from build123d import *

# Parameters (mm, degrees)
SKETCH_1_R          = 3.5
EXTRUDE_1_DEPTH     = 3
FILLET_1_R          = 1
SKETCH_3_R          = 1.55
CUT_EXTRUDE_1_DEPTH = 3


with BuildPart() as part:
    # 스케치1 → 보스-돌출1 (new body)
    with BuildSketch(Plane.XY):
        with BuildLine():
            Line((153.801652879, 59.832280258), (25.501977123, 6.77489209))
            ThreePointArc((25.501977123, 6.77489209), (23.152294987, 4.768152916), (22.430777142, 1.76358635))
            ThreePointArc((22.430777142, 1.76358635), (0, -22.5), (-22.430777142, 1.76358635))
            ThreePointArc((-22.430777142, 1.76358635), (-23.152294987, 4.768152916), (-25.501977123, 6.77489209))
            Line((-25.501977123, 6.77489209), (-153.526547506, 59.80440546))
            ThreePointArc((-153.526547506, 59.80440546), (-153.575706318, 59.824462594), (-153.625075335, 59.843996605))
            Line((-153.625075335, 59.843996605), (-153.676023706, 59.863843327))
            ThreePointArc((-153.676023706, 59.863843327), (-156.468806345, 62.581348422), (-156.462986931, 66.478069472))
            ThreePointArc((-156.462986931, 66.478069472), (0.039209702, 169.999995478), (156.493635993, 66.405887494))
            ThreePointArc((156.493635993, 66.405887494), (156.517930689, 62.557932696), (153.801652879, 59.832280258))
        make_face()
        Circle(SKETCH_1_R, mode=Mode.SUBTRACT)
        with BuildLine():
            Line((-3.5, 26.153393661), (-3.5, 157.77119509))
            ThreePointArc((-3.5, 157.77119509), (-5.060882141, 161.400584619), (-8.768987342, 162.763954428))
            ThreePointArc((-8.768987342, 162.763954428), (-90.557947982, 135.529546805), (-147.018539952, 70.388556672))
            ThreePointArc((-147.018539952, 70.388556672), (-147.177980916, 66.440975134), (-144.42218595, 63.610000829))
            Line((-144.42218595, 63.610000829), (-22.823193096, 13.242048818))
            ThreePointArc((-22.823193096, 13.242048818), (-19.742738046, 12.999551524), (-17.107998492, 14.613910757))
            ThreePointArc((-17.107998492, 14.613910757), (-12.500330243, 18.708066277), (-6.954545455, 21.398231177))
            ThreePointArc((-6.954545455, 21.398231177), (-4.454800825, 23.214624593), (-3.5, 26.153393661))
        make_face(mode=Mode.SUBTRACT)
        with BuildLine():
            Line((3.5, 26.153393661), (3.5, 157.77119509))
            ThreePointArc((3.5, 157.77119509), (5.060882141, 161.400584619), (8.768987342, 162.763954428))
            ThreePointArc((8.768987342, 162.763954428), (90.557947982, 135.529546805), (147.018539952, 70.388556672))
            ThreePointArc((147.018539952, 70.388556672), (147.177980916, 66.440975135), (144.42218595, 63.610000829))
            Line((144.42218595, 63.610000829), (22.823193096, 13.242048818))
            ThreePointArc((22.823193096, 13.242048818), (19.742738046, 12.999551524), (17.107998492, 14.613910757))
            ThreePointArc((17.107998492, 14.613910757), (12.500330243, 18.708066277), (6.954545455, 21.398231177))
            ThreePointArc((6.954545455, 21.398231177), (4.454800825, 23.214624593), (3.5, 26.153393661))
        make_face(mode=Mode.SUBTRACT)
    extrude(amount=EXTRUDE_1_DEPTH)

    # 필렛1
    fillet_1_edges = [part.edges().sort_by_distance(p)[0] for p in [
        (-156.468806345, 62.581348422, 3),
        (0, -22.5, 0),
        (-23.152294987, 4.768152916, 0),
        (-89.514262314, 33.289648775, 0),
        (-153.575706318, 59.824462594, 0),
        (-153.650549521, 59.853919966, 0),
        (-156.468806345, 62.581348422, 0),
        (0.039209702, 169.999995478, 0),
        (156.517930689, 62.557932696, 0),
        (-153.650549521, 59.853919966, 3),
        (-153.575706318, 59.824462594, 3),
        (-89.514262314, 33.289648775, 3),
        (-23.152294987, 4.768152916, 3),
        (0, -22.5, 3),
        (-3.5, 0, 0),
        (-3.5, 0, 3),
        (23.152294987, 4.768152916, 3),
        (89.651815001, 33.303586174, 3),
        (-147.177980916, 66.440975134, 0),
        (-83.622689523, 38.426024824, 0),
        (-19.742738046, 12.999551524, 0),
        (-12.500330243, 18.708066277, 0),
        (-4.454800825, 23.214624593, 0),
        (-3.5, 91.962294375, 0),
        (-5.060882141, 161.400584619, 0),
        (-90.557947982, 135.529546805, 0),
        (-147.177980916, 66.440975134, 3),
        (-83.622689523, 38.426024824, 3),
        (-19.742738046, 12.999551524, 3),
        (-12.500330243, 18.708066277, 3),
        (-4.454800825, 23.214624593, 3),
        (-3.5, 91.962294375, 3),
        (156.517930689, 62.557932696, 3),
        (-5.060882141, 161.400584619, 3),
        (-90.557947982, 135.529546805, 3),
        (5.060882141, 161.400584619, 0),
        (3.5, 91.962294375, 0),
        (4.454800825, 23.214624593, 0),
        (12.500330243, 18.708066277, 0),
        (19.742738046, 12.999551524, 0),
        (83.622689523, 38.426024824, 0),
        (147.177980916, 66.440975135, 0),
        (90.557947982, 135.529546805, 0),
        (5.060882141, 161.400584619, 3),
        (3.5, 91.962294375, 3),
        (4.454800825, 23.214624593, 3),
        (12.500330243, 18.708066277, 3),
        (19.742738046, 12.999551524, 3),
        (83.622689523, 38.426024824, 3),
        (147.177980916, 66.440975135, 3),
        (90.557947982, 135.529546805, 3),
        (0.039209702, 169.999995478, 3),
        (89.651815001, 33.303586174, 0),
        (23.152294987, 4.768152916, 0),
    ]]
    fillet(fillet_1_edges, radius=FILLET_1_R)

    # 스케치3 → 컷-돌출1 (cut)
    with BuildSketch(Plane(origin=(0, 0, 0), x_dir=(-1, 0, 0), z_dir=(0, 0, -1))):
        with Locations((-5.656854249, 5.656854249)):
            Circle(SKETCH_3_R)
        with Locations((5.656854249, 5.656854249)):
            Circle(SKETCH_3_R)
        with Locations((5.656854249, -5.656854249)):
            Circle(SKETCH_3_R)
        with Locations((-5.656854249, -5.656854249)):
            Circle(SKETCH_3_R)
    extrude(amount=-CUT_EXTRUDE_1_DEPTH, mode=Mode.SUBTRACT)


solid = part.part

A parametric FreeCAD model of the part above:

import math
import FreeCAD as App
import Part
import Sketcher
from FreeCAD import Vector


def edges_at(feature, points):
    """Names of the edges that pass closest to the given points."""
    edges = feature.Shape.Edges
    near = lambda p: min(range(len(edges)), key=lambda i: edges[i].distToShape(Part.Vertex(*p))[0])
    return sorted({f"Edge{near(p) + 1}" for p in points})

doc = App.newDocument("Part")
body = doc.addObject("PartDesign::Body", "Body")

# Sketch on XY plane
sketch1 = body.newObject("Sketcher::SketchObject", "Sketch")
sketch1.AttachmentSupport = (doc.getObject("XY_Plane"), [""])
sketch1.MapMode = "FlatFace"
sketch1.addGeometry([
    Part.LineSegment(Vector(25.501977, 6.774892, 0), Vector(153.801653, 59.83228, 0)),  # 0
    Part.ArcOfCircle(Part.Circle(Vector(151.890882, 64.452773, 0), Vector(0, 0, 1), 5), math.radians(-67.532819), math.radians(22.993262)),  # 1
    Part.ArcOfCircle(Part.Circle(Vector(0, 0, 0), Vector(0, 0, 1), 170), math.radians(22.993262), math.radians(156.980308)),  # 2
    Part.ArcOfCircle(Part.Circle(Vector(-151.861134, 64.522832, 0), Vector(0, 0, 1), 5), math.radians(156.980308), math.radians(248.71681)),  # 3
    Part.LineSegment(Vector(-153.676024, 59.863843, 0), Vector(-153.625075, 59.843997, 0)),  # 4
    Part.ArcOfCircle(Part.Circle(Vector(-155.439962, 55.185015, 0), Vector(0, 0, 1), 4.999992), math.radians(67.499999), math.radians(68.716811)),  # 5
    Part.LineSegment(Vector(-153.526548, 59.804405, 0), Vector(-25.501977, 6.774892, 0)),  # 6
    Part.ArcOfCircle(Part.Circle(Vector(-27.415394, 2.155494, 0), Vector(0, 0, 1), 5), math.radians(-4.495547), math.radians(67.5)),  # 7
    Part.ArcOfCircle(Part.Circle(Vector(0, 0, 0), Vector(0, 0, 1), 22.5), math.radians(175.504453), math.radians(364.495547)),  # 8
    Part.ArcOfCircle(Part.Circle(Vector(27.415394, 2.155494, 0), Vector(0, 0, 1), 5), math.radians(112.5), math.radians(184.495547)),  # 9
    Part.Circle(Vector(0, 0, 0), Vector(0, 0, 1), 3.5),  # 10
    Part.LineSegment(Vector(3.5, 26.153394, 0), Vector(3.5, 157.771195, 0)),  # 11
    Part.ArcOfCircle(Part.Circle(Vector(8.5, 157.771195, 0), Vector(0, 0, 1), 5), math.radians(86.916143), math.radians(180)),  # 12
    Part.ArcOfCircle(Part.Circle(Vector(0, 0, 0), Vector(0, 0, 1), 163), math.radians(25.583857), math.radians(86.916143)),  # 13
    Part.ArcOfCircle(Part.Circle(Vector(142.508769, 68.229398, 0), Vector(0, 0, 1), 5), math.radians(-67.5), math.radians(25.583857)),  # 14
    Part.LineSegment(Vector(144.422186, 63.610001, 0), Vector(22.823193, 13.242049, 0)),  # 15
    Part.ArcOfCircle(Part.Circle(Vector(20.909776, 17.861446, 0), Vector(0, 0, 1), 5), math.radians(-139.495547), math.radians(-67.5)),  # 16
    Part.ArcOfCircle(Part.Circle(Vector(0, 0, 0), Vector(0, 0, 1), 22.5), math.radians(40.504453), math.radians(71.995547)),  # 17
    Part.ArcOfCircle(Part.Circle(Vector(8.5, 26.153394, 0), Vector(0, 0, 1), 5), math.radians(180), math.radians(251.995547)),  # 18
    Part.ArcOfCircle(Part.Circle(Vector(-8.5, 26.153394, 0), Vector(0, 0, 1), 5), math.radians(-71.995547), math.radians(0)),  # 19
    Part.ArcOfCircle(Part.Circle(Vector(0, 0, 0), Vector(0, 0, 1), 22.5), math.radians(108.004453), math.radians(139.495547)),  # 20
    Part.ArcOfCircle(Part.Circle(Vector(-20.909776, 17.861446, 0), Vector(0, 0, 1), 5), math.radians(-112.5), math.radians(-40.504453)),  # 21
    Part.LineSegment(Vector(-22.823193, 13.242049, 0), Vector(-144.422186, 63.610001, 0)),  # 22
    Part.ArcOfCircle(Part.Circle(Vector(-142.508769, 68.229398, 0), Vector(0, 0, 1), 5), math.radians(154.416143), math.radians(247.5)),  # 23
    Part.ArcOfCircle(Part.Circle(Vector(0, 0, 0), Vector(0, 0, 1), 163), math.radians(93.083857), math.radians(154.416143)),  # 24
    Part.ArcOfCircle(Part.Circle(Vector(-8.5, 157.771195, 0), Vector(0, 0, 1), 5), math.radians(0), math.radians(93.083857)),  # 25
    Part.LineSegment(Vector(-3.5, 157.771195, 0), Vector(-3.5, 26.153394, 0)),  # 26
], False)
sketch1.addConstraint([
    Sketcher.Constraint("Coincident", 0, 2, 1, 1),
    Sketcher.Constraint("Coincident", 1, 2, 2, 1),
    Sketcher.Constraint("Coincident", 2, 2, 3, 1),
    Sketcher.Constraint("Coincident", 3, 2, 4, 1),
    Sketcher.Constraint("Coincident", 4, 2, 5, 2),
    Sketcher.Constraint("Coincident", 5, 1, 6, 1),
    Sketcher.Constraint("Coincident", 6, 2, 7, 2),
    Sketcher.Constraint("Coincident", 7, 1, 8, 1),
    Sketcher.Constraint("Coincident", 8, 2, 9, 2),
    Sketcher.Constraint("Coincident", 9, 1, 0, 1),
    Sketcher.Constraint("Coincident", 11, 2, 12, 2),
    Sketcher.Constraint("Coincident", 12, 1, 13, 2),
    Sketcher.Constraint("Coincident", 13, 1, 14, 2),
    Sketcher.Constraint("Coincident", 14, 1, 15, 1),
    Sketcher.Constraint("Coincident", 15, 2, 16, 2),
    Sketcher.Constraint("Coincident", 16, 1, 17, 1),
    Sketcher.Constraint("Coincident", 17, 2, 18, 2),
    Sketcher.Constraint("Coincident", 18, 1, 11, 1),
    Sketcher.Constraint("Coincident", 19, 1, 20, 1),
    Sketcher.Constraint("Coincident", 20, 2, 21, 2),
    Sketcher.Constraint("Coincident", 21, 1, 22, 1),
    Sketcher.Constraint("Coincident", 22, 2, 23, 2),
    Sketcher.Constraint("Coincident", 23, 1, 24, 2),
    Sketcher.Constraint("Coincident", 24, 1, 25, 2),
    Sketcher.Constraint("Coincident", 25, 1, 26, 1),
    Sketcher.Constraint("Coincident", 26, 2, 19, 2),
    Sketcher.Constraint("Vertical", 11),
    Sketcher.Constraint("Vertical", 26),
    Sketcher.Constraint("Coincident", 2, 3, -1, 1),
    Sketcher.Constraint("Coincident", 8, 3, -1, 1),
    Sketcher.Constraint("Coincident", 10, 3, -1, 1),
    Sketcher.Constraint("Coincident", 13, 3, -1, 1),
    Sketcher.Constraint("Coincident", 17, 3, -1, 1),
    Sketcher.Constraint("Coincident", 20, 3, -1, 1),
    Sketcher.Constraint("Coincident", 24, 3, -1, 1),
    Sketcher.Constraint("Diameter", 10, 7.0),
    Sketcher.Constraint("Radius", 1, 5.0),
    Sketcher.Constraint("Radius", 2, 170.0),
    Sketcher.Constraint("Radius", 3, 5.0),
    Sketcher.Constraint("Radius", 7, 5.0),
    Sketcher.Constraint("Radius", 9, 5.0),
    Sketcher.Constraint("Radius", 12, 5.0),
    Sketcher.Constraint("Radius", 13, 163.0),
    Sketcher.Constraint("Radius", 14, 5.0),
    Sketcher.Constraint("Radius", 16, 5.0),
    Sketcher.Constraint("Radius", 18, 5.0),
    Sketcher.Constraint("Radius", 19, 5.0),
    Sketcher.Constraint("Radius", 21, 5.0),
    Sketcher.Constraint("Radius", 23, 5.0),
    Sketcher.Constraint("Radius", 24, 163.0),
    Sketcher.Constraint("Radius", 25, 5.0),
    Sketcher.Constraint("Radius", 8, 22.5),
    Sketcher.Constraint("Radius", 17, 22.5),
    Sketcher.Constraint("Radius", 20, 22.5),
    Sketcher.Constraint("DistanceX", 19, 3, 18, 3, 17.0),
    Sketcher.Constraint("DistanceX", -1, 1, 12, 3, 8.5),
    Sketcher.Constraint("DistanceY", -1, 1, 14, 1, 63.610001),
    Sketcher.Constraint("DistanceY", -1, 1, 22, 2, 63.610001),
    Sketcher.Constraint("Radius", 5, 4.999992),
    Sketcher.Constraint("DistanceY", 11, 1, 11, 2, 131.617801),
    Sketcher.Constraint("DistanceY", 26, 2, 26, 1, 131.617801),
    Sketcher.Constraint("DistanceX", -1, 1, 16, 1, 17.107998),
    Sketcher.Constraint("DistanceX", 20, 2, -1, 1, 17.107998),
    Sketcher.Constraint("DistanceX", 7, 1, 21, 3, 1.521001),
    Sketcher.Constraint("DistanceX", 16, 3, 8, 2, 1.521001),
    Sketcher.Constraint("Distance", 15, 131.617801),
    Sketcher.Constraint("Distance", 22, 131.617801),
    Sketcher.Constraint("DistanceY", -1, 1, 14, 3, 68.229398),
    Sketcher.Constraint("DistanceY", -1, 1, 23, 3, 68.229398),
    Sketcher.Constraint("DistanceY", 9, 3, 12, 3, 155.615701),
    Sketcher.Constraint("DistanceY", 7, 3, 12, 3, 155.615701),
    Sketcher.Constraint("DistanceY", 4, 2, 23, 3, 8.385402),
    Sketcher.Constraint("DistanceX", 6, 2, 21, 3, 4.592201),
    Sketcher.Constraint("DistanceY", 6, 2, 19, 3, 19.378502),
    Sketcher.Constraint("DistanceX", 8, 2, 9, 1, 3.0712),
    Sketcher.Constraint("DistanceY", 9, 1, 18, 3, 19.378502),
    Sketcher.Constraint("DistanceY", 18, 3, 11, 2, 131.617801),
    Sketcher.Constraint("Distance", 0, 138.837651),
    Sketcher.Constraint("DistanceX", -1, 1, 1, 3, 151.890882),
    Sketcher.Constraint("DistanceX", 5, 3, -1, 1, 155.439962),
    Sketcher.Constraint("DistanceY", -1, 1, 2, 2, 66.478069),
    Sketcher.Constraint("DistanceX", -1, 1, 13, 1, 147.01854),
    Sketcher.Constraint("DistanceY", -1, 1, 17, 2, 21.398231),
    Sketcher.Constraint("DistanceY", -1, 1, 19, 1, 21.398231),
    Sketcher.Constraint("DistanceX", 23, 1, -1, 1, 147.01854),
    Sketcher.Constraint("DistanceY", 1, 3, 3, 3, 0.070059),
    Sketcher.Constraint("DistanceY", 7, 3, 5, 3, 53.029521),
    Sketcher.Constraint("DistanceY", 1, 2, 14, 3, 1.823511),
    Sketcher.Constraint("DistanceX", 3, 2, 3, 3, 1.814889),
    Sketcher.Constraint("DistanceY", 5, 1, 4, 2, 0.039591),
    Sketcher.Constraint("DistanceY", 12, 3, 12, 1, 4.992759),
    Sketcher.Constraint("DistanceY", 25, 3, 24, 1, 4.992759),
    Sketcher.Constraint("DistanceY", 25, 1, 24, 1, 4.992759),
])
pad1 = body.newObject("PartDesign::Pad", "Pad")
pad1.Profile = sketch1
pad1.Length = 3
doc.recompute()

fillet = body.newObject("PartDesign::Fillet", "Fillet")
fillet.Base = (pad1, edges_at(pad1, [
    (-156.469, 62.581, 3),
    (0, -22.5, 0),
    (-23.152, 4.768, 0),
    (-89.514, 33.29, 0),
    (-153.576, 59.824, 0),
    (-153.651, 59.854, 0),
    (-156.469, 62.581, 0),
    (0.039, 170, 0),
    (156.518, 62.558, 0),
    (-153.651, 59.854, 3),
    (-153.576, 59.824, 3),
    (-89.514, 33.29, 3),
    (-23.152, 4.768, 3),
    (0, -22.5, 3),
    (-3.5, 0, 0),
    (-3.5, 0, 3),
    (23.152, 4.768, 3),
    (89.652, 33.304, 3),
    (-147.178, 66.441, 0),
    (-83.623, 38.426, 0),
    (-19.743, 13, 0),
    (-12.5, 18.708, 0),
    (-4.455, 23.215, 0),
    (-3.5, 91.962, 0),
    (-5.061, 161.401, 0),
    (-90.558, 135.53, 0),
    (-147.178, 66.441, 3),
    (-83.623, 38.426, 3),
    (-19.743, 13, 3),
    (-12.5, 18.708, 3),
    (-4.455, 23.215, 3),
    (-3.5, 91.962, 3),
    (156.518, 62.558, 3),
    (-5.061, 161.401, 3),
    (-90.558, 135.53, 3),
    (5.061, 161.401, 0),
    (3.5, 91.962, 0),
    (4.455, 23.215, 0),
    (12.5, 18.708, 0),
    (19.743, 13, 0),
    (83.623, 38.426, 0),
    (147.178, 66.441, 0),
    (90.558, 135.53, 0),
    (5.061, 161.401, 3),
    (3.5, 91.962, 3),
    (4.455, 23.215, 3),
    (12.5, 18.708, 3),
    (19.743, 13, 3),
    (83.623, 38.426, 3),
    (147.178, 66.441, 3),
    (90.558, 135.53, 3),
    (0.039, 170, 3),
    (89.652, 33.304, 0),
    (23.152, 4.768, 0),
]))
fillet.Radius = 1

# Sketch on XY plane
sketch2 = body.newObject("Sketcher::SketchObject", "Sketch001")
sketch2.AttachmentSupport = (doc.getObject("XY_Plane"), [""])
sketch2.MapMode = "FlatFace"
sketch2.addGeometry([
    Part.Circle(Vector(5.7, 5.7, 0), Vector(0, 0, 1), 1.6),
    Part.Circle(Vector(-5.7, 5.7, 0), Vector(0, 0, 1), 1.6),
    Part.Circle(Vector(-5.7, -5.7, 0), Vector(0, 0, 1), 1.6),
    Part.Circle(Vector(5.7, -5.7, 0), Vector(0, 0, 1), 1.6),
], False)
sketch2.addConstraint([
    Sketcher.Constraint("Equal", 0, 1),
    Sketcher.Constraint("Equal", 1, 2),
    Sketcher.Constraint("Equal", 2, 3),
    Sketcher.Constraint("Symmetric", 0, 3, 2, 3, -1, 1),
    Sketcher.Constraint("Symmetric", 1, 3, 3, 3, -1, 1),
    Sketcher.Constraint("Symmetric", 0, 3, 1, 3, -2),
    Sketcher.Constraint("Diameter", 0, 3.1),
    Sketcher.Constraint("DistanceX", 1, 3, 0, 3, 11.313708),
    Sketcher.Constraint("DistanceY", 2, 3, 1, 3, 11.313708),
])
pocket1 = body.newObject("PartDesign::Pocket", "Pocket")
pocket1.Profile = sketch2
pocket1.Length = 3
pocket1.Reversed = True

doc.recompute()
